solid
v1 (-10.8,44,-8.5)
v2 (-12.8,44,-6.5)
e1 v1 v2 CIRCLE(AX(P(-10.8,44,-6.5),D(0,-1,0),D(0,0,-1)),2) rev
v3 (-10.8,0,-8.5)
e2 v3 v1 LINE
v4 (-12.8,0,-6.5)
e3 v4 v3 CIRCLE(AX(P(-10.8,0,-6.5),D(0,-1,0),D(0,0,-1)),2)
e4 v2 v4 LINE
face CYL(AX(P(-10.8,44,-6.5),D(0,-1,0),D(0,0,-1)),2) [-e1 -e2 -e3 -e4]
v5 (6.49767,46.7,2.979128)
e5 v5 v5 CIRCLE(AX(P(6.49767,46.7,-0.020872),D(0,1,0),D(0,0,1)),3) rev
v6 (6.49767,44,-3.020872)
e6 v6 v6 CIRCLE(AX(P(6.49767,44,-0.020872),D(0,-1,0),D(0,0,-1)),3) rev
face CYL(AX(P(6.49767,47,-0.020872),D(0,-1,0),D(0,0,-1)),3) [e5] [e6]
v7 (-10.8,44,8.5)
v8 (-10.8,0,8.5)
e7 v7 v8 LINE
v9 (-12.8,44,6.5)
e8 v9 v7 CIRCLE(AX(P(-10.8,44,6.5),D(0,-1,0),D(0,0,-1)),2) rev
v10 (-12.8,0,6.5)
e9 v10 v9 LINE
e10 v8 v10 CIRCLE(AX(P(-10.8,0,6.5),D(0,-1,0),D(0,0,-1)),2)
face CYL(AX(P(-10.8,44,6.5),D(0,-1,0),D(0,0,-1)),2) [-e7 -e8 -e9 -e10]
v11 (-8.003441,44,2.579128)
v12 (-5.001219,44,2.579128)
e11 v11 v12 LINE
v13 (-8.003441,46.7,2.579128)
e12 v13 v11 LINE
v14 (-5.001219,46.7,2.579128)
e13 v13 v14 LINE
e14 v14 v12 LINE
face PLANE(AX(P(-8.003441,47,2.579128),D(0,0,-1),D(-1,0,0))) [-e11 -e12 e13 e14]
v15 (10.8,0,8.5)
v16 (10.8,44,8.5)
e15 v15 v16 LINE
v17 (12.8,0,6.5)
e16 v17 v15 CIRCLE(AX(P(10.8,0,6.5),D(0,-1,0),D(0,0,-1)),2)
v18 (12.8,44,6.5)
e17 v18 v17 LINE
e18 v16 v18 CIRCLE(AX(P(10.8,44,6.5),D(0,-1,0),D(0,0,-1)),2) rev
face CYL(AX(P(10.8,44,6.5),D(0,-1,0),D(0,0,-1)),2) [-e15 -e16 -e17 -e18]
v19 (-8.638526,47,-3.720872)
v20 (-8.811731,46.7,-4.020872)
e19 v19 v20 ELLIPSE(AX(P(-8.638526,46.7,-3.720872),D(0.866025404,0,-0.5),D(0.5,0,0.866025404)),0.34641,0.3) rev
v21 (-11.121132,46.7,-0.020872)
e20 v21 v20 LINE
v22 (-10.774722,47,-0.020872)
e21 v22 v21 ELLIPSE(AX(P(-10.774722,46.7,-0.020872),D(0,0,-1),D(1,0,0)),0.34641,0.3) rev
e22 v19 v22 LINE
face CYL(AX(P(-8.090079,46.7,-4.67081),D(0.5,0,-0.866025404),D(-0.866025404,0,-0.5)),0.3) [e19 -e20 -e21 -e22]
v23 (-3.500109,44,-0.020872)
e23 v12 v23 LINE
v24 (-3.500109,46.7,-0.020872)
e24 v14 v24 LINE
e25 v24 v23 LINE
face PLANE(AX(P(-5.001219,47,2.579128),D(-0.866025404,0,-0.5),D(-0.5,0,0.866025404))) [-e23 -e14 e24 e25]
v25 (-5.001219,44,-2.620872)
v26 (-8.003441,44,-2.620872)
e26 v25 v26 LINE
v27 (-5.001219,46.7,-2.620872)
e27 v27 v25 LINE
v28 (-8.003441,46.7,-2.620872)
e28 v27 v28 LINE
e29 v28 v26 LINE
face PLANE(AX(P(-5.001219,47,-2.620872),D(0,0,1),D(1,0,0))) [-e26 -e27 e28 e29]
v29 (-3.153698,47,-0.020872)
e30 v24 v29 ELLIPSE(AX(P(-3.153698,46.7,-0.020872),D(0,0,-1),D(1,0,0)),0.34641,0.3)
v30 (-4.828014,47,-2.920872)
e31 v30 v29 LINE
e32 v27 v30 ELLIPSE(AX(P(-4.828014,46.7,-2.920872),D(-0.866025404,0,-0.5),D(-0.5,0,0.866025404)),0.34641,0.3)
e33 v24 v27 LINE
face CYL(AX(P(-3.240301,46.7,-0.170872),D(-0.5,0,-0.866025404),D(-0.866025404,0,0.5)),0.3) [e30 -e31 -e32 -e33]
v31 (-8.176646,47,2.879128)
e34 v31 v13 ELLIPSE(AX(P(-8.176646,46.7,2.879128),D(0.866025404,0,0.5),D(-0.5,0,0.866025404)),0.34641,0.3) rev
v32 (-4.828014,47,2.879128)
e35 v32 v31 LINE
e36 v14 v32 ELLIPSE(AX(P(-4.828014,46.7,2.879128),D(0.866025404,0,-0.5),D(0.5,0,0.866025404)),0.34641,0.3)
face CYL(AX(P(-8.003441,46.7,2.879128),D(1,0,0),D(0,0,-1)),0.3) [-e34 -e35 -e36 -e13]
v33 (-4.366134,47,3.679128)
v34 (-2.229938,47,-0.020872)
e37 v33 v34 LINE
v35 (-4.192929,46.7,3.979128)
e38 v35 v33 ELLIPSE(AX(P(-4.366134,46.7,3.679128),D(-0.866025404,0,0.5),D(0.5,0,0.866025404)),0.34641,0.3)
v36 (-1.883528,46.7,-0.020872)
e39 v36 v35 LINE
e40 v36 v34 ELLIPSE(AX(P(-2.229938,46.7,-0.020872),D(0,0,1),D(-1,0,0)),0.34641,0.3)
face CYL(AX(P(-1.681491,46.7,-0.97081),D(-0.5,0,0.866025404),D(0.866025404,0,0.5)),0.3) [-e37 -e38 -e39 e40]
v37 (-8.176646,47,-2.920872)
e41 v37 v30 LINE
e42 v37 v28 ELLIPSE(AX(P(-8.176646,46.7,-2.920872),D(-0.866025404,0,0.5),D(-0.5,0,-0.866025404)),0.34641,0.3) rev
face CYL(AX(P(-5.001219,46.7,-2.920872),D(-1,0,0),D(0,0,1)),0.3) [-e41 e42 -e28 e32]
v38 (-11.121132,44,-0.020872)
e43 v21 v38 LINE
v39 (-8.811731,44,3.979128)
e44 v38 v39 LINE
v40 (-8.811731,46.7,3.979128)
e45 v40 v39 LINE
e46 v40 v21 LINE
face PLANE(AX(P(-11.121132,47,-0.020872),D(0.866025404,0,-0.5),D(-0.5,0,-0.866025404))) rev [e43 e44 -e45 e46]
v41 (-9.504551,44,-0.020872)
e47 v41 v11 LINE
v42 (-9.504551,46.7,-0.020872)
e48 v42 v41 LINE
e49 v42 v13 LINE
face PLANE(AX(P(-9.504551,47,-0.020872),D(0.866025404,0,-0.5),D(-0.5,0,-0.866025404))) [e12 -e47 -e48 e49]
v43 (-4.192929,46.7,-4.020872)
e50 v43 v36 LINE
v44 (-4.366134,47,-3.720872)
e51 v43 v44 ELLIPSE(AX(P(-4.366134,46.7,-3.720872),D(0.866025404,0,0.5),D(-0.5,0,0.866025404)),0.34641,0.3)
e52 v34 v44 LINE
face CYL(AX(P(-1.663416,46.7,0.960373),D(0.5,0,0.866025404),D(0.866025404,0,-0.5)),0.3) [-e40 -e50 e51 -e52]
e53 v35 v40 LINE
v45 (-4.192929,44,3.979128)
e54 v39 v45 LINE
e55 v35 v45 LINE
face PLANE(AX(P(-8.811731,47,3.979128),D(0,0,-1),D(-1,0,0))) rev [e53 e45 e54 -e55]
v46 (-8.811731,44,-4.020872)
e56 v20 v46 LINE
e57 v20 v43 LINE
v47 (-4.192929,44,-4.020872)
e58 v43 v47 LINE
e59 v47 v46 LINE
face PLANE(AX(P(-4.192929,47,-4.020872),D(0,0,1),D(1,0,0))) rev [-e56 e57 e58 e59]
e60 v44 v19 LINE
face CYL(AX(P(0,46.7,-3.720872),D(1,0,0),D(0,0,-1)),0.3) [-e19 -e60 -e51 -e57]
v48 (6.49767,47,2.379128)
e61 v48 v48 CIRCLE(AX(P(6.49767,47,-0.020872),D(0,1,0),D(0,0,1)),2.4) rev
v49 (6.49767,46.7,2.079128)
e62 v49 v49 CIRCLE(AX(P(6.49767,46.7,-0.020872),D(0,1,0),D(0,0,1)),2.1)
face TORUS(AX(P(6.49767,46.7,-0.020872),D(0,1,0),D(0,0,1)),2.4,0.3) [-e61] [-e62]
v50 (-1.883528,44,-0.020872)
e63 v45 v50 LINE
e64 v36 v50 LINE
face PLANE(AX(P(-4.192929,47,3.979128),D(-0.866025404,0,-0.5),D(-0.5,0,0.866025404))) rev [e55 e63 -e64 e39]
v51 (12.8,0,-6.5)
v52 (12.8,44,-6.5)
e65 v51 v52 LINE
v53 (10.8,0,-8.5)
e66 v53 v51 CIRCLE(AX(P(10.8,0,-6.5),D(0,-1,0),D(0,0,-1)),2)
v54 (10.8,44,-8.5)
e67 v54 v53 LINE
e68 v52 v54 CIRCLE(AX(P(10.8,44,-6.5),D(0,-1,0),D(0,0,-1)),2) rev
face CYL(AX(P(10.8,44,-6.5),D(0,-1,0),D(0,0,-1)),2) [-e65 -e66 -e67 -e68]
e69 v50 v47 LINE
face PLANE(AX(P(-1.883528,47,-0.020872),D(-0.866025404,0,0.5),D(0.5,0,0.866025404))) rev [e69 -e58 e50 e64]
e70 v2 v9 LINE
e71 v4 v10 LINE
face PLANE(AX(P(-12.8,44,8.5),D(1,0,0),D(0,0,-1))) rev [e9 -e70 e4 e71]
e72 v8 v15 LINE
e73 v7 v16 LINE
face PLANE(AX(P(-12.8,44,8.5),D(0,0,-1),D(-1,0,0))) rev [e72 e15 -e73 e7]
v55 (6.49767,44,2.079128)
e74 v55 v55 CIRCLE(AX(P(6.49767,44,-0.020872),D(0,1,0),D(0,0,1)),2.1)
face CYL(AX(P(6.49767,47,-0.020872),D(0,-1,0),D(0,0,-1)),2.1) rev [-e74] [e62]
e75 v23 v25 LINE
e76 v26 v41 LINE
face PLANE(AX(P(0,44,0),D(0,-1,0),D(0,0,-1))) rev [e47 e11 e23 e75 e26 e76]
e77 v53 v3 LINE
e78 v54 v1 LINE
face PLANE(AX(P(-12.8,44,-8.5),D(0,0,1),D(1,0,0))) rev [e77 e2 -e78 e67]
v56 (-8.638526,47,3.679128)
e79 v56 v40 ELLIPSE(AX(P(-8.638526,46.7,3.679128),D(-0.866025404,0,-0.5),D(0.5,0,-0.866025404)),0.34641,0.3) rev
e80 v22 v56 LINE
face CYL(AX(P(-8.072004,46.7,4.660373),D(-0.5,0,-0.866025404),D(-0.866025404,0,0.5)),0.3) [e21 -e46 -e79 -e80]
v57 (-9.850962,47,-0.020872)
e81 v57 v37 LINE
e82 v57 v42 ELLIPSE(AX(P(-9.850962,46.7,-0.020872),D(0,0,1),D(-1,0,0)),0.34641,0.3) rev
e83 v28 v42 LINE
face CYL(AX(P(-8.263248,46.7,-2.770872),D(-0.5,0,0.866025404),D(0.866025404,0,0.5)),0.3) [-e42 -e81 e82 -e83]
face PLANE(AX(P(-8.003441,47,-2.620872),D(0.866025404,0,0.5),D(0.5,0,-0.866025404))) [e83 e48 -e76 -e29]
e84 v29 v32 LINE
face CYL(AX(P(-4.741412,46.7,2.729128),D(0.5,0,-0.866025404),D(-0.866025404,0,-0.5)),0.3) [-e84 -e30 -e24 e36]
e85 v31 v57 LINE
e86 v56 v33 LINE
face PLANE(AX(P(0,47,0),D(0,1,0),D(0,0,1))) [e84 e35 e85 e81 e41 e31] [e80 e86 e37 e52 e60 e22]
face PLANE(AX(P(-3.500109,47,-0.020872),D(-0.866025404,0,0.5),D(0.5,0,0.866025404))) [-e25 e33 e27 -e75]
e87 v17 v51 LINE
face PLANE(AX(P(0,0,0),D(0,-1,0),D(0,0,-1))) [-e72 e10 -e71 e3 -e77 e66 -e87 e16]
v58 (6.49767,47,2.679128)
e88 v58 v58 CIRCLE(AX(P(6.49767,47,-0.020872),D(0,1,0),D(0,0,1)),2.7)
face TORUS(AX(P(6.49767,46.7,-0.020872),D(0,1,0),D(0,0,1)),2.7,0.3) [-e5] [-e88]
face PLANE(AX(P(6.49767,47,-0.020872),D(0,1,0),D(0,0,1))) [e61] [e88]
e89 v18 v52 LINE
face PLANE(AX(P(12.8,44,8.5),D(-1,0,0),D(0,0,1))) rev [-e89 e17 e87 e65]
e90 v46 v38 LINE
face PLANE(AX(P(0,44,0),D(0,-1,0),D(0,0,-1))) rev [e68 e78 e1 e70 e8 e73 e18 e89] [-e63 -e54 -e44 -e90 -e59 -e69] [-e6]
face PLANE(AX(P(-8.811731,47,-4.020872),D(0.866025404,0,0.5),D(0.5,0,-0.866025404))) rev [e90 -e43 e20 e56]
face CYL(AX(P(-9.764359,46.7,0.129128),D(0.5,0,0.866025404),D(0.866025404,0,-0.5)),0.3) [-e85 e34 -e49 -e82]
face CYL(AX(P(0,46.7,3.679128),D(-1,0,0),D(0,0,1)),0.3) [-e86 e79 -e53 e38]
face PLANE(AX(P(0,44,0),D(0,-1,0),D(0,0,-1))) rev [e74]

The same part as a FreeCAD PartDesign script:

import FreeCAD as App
import Part
import Sketcher
Q = App.Units.Quantity


def edges_at(feature, points):
    """Names of the edges that pass closest to the given points."""
    edges = feature.Shape.Edges
    near = lambda p: min(range(len(edges)), key=lambda i: edges[i].distToShape(Part.Vertex(*p))[0])
    return sorted({f"Edge{near(p) + 1}" for p in points})

doc = App.newDocument("Part")
body = doc.addObject("PartDesign::Body", "Body")

# Sketch on XZ plane
sketch1 = doc.addObject("Sketcher::SketchObject", "Sketch")
body.addObject(sketch1)
sketch1.AttachmentSupport = (doc.XZ_Plane, [""])
sketch1.MapMode = "FlatFace"
sketch1.addGeometry([
    Part.LineSegment(App.Vector(-12.8, -8.5, 0), App.Vector(-12.8, 8.5, 0)),
    Part.LineSegment(App.Vector(-12.8, 8.5, 0), App.Vector(12.8, 8.5, 0)),
    Part.LineSegment(App.Vector(12.8, 8.5, 0), App.Vector(12.8, -8.5, 0)),
    Part.LineSegment(App.Vector(12.8, -8.5, 0), App.Vector(-12.8, -8.5, 0)),
], False)
sketch1.addConstraint([
    Sketcher.Constraint("Coincident", 0, 2, 1, 1),
    Sketcher.Constraint("Coincident", 1, 2, 2, 1),
    Sketcher.Constraint("Coincident", 2, 2, 3, 1),
    Sketcher.Constraint("Coincident", 3, 2, 0, 1),
    Sketcher.Constraint("Vertical", 0),
    Sketcher.Constraint("Horizontal", 1),
    Sketcher.Constraint("Vertical", 2),
    Sketcher.Constraint("Horizontal", 3),
    Sketcher.Constraint("Symmetric", 0, 2, 2, 2, -1, 1),
    Sketcher.Constraint("DistanceY", 0, 1, 0, 2, 17.0),
    Sketcher.Constraint("DistanceX", 1, 1, 1, 2, 25.6),
])
pad1 = doc.addObject("PartDesign::Pad", "Pad")
body.addObject(pad1)
pad1.Profile = sketch1
pad1.Length = 44
pad1.Reversed = True
doc.recompute()

fillet = doc.addObject("PartDesign::Fillet", "Fillet")
body.addObject(fillet)
fillet.Base = (pad1, edges_at(pad1, [
    (12.8, 22, 8.5),
    (-12.8, 22, 8.5),
    (-12.8, 22, -8.5),
    (12.8, 22, -8.5),
]))
fillet.Radius = 2

# Sketch on XZ plane
sketch2 = doc.addObject("Sketcher::SketchObject", "Sketch001")
body.addObject(sketch2)
sketch2.AttachmentSupport = (doc.XZ_Plane, [""])
sketch2.MapMode = "FlatFace"
sketch2.AttachmentOffset = App.Placement(App.Vector(0, 0, -44), App.Rotation())
sketch2.addGeometry([
    Part.Circle(App.Vector(6.49767, -0.020872, 0), App.Vector(0, 0, 1), 3),  # 0
    Part.Circle(App.Vector(6.49767, -0.020872, 0), App.Vector(0, 0, 1), 2.1),  # 1
    Part.LineSegment(App.Vector(-1.883528, -0.020872, 0), App.Vector(-4.192929, -4.020872, 0)),  # 2
    Part.LineSegment(App.Vector(-4.192929, -4.020872, 0), App.Vector(-8.811731, -4.020872, 0)),  # 3
    Part.LineSegment(App.Vector(-8.811731, -4.020872, 0), App.Vector(-11.121132, -0.020872, 0)),  # 4
    Part.LineSegment(App.Vector(-11.121132, -0.020872, 0), App.Vector(-8.811731, 3.979128, 0)),  # 5
    Part.LineSegment(App.Vector(-8.811731, 3.979128, 0), App.Vector(-4.192929, 3.979128, 0)),  # 6
    Part.LineSegment(App.Vector(-4.192929, 3.979128, 0), App.Vector(-1.883528, -0.020872, 0)),  # 7
    Part.LineSegment(App.Vector(-5.001219, -2.620872, 0), App.Vector(-3.500109, -0.020872, 0)),  # 8
    Part.LineSegment(App.Vector(-3.500109, -0.020872, 0), App.Vector(-5.001219, 2.579128, 0)),  # 9
    Part.LineSegment(App.Vector(-5.001219, 2.579128, 0), App.Vector(-8.003441, 2.579128, 0)),  # 10
    Part.LineSegment(App.Vector(-8.003441, 2.579128, 0), App.Vector(-9.504551, -0.020872, 0)),  # 11
    Part.LineSegment(App.Vector(-9.504551, -0.020872, 0), App.Vector(-8.003441, -2.620872, 0)),  # 12
    Part.LineSegment(App.Vector(-8.003441, -2.620872, 0), App.Vector(-5.001219, -2.620872, 0)),  # 13
], False)
sketch2.addConstraint([
    Sketcher.Constraint("Coincident", 2, 2, 3, 1),
    Sketcher.Constraint("Coincident", 3, 2, 4, 1),
    Sketcher.Constraint("Coincident", 4, 2, 5, 1),
    Sketcher.Constraint("Coincident", 5, 2, 6, 1),
    Sketcher.Constraint("Coincident", 6, 2, 7, 1),
    Sketcher.Constraint("Coincident", 7, 2, 2, 1),
    Sketcher.Constraint("Coincident", 8, 2, 9, 1),
    Sketcher.Constraint("Coincident", 9, 2, 10, 1),
    Sketcher.Constraint("Coincident", 10, 2, 11, 1),
    Sketcher.Constraint("Coincident", 11, 2, 12, 1),
    Sketcher.Constraint("Coincident", 12, 2, 13, 1),
    Sketcher.Constraint("Coincident", 13, 2, 8, 1),
    Sketcher.Constraint("Horizontal", 3),
    Sketcher.Constraint("Horizontal", 6),
    Sketcher.Constraint("Horizontal", 10),
    Sketcher.Constraint("Horizontal", 13),
    Sketcher.Constraint("Coincident", 1, 3, 0, 3),
    Sketcher.Constraint("Parallel", 2, 5),
    Sketcher.Constraint("Parallel", 4, 7),
    Sketcher.Constraint("Parallel", 5, 8),
    Sketcher.Constraint("Parallel", 7, 9),
    Sketcher.Constraint("Parallel", 8, 11),
    Sketcher.Constraint("Parallel", 9, 12),
    Sketcher.Constraint("Horizontal", 1, 3, 4, 2),
    Sketcher.Constraint("Horizontal", 4, 2, 7, 2),
    Sketcher.Constraint("Horizontal", 7, 2, 8, 2),
    Sketcher.Constraint("Horizontal", 8, 2, 11, 2),
    Sketcher.Constraint("Vertical", 3, 2, 5, 2),
    Sketcher.Constraint("Vertical", 2, 2, 6, 2),
    Sketcher.Constraint("Vertical", 10, 2, 12, 2),
    Sketcher.Constraint("Diameter", 0, 6.0),
    Sketcher.Constraint("Diameter", 1, 4.2),
    Sketcher.Constraint("Angle", 2, Q("-120 deg")),
    Sketcher.Constraint("DistanceY", 2, 2, 0, 3, 4.0),
    Sketcher.Constraint("DistanceY", 9, 2, 6, 2, 1.4),
    Sketcher.Constraint("DistanceX", 10, 2, 10, 1, 3.002221),
    Sketcher.Constraint("DistanceX", 2, 2, 0, 3, 10.690599),
    Sketcher.Constraint("DistanceX", 3, 2, 0, 3, 15.309401),
    Sketcher.Constraint("DistanceX", -1, 1, 0, 3, 6.49767),
    Sketcher.Constraint("DistanceX", 8, 2, -1, 1, 3.500109),
    Sketcher.Constraint("DistanceY", 0, 3, -1, 1, 0.020872),
])
pad2 = doc.addObject("PartDesign::Pad", "Pad001")
body.addObject(pad2)
pad2.Profile = sketch2
pad2.Length = 3
pad2.Reversed = True
doc.recompute()

fillet2 = doc.addObject("PartDesign::Fillet", "Fillet001")
body.addObject(fillet2)
fillet2.Base = (pad2, edges_at(pad2, [
    (6.498, 47, 2.979),
    (6.498, 47, -2.121),
    (-3.038, 47, 1.979),
    (-3.038, 47, -2.021),
    (-6.502, 47, -4.021),
    (-9.966, 47, -2.021),
    (-9.966, 47, 1.979),
    (-6.502, 47, 3.979),
    (-4.251, 47, 1.279),
    (-4.251, 47, -1.321),
    (-6.502, 47, -2.621),
    (-8.754, 47, -1.321),
    (-8.754, 47, 1.279),
    (-6.502, 47, 2.579),
]))
fillet2.Radius = 0.3

doc.recompute()
